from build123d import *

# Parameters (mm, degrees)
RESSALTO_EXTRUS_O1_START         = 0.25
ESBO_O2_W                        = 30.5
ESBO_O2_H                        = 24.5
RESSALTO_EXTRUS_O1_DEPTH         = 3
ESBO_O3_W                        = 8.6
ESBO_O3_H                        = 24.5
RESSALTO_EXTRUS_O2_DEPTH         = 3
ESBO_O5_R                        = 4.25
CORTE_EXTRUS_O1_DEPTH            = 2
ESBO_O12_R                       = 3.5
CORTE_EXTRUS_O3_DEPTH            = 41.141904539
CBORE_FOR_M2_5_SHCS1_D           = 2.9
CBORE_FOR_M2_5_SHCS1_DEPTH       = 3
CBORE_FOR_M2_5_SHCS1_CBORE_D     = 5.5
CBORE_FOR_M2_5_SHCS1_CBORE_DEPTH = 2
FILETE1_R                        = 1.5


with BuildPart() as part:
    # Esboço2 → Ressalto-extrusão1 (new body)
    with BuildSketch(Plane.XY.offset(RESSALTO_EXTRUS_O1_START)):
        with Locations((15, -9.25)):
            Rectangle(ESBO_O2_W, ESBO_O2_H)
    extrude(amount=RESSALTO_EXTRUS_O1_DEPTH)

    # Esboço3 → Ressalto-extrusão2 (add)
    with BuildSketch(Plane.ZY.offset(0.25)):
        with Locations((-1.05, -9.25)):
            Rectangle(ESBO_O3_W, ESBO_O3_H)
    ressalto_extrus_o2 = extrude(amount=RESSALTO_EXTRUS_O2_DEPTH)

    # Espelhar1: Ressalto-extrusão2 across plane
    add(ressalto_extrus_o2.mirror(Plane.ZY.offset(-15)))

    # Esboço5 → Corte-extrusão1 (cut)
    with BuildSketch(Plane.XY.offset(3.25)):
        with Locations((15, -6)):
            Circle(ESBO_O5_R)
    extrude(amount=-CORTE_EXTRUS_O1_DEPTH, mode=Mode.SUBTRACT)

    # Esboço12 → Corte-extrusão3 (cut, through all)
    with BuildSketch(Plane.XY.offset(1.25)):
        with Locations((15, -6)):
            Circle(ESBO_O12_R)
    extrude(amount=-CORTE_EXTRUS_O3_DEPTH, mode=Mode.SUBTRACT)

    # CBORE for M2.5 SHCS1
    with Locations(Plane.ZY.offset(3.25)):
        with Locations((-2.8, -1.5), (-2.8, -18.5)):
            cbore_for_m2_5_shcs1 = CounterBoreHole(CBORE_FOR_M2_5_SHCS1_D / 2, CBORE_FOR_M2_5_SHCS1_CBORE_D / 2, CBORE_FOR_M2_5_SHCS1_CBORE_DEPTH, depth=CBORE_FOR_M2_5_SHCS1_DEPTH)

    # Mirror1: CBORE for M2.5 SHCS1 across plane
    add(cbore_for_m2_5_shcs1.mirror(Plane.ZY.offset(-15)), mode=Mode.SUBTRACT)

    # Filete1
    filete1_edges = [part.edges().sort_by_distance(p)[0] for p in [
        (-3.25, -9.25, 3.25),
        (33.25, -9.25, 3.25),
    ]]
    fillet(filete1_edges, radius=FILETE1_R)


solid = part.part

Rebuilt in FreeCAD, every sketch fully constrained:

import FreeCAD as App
import Part
import Sketcher

V = App.Vector
Q = App.Units.Quantity


def edges_at(feature, points):
    """Names of the edges that pass closest to the given points."""
    edges = feature.Shape.Edges
    near = lambda p: min(range(len(edges)), key=lambda i: edges[i].distToShape(Part.Vertex(*p))[0])
    return sorted({f"Edge{near(p) + 1}" for p in points})


def add_polygon(sketch, points):
    """Adds a closed chain of lines whose ends are joined by coincident constraints."""
    first, n = sketch.GeometryCount, len(points)
    for a, b in zip(points, points[1:] + points[:1]):
        sketch.addGeometry(Part.LineSegment(App.Vector(*a, 0), App.Vector(*b, 0)), False)
    for i in range(n):
        sketch.addConstraint(Sketcher.Constraint("Coincident", first + i, 2, first + (i + 1) % n, 1))

doc = App.newDocument("Part")
body = doc.addObject("PartDesign::Body", "Body")

# Sketch on XY plane
sketch1 = body.newObject("Sketcher::SketchObject", "Sketch")
sketch1.AttachmentSupport = (doc.getObject("XY_Plane"), [""])
sketch1.MapMode = "FlatFace"
sketch1.AttachmentOffset = App.Placement(V(0, 0, 0.25), App.Rotation())
add_polygon(sketch1, [(0, 3), (0, -22), (30, -22), (30, 3)])  # lines 0-3
sketch1.addConstraint(Sketcher.Constraint("Vertical", 0))
sketch1.addConstraint(Sketcher.Constraint("Horizontal", 1))
sketch1.addConstraint(Sketcher.Constraint("Vertical", 2))
sketch1.addConstraint(Sketcher.Constraint("Horizontal", 3))
sketch1.addConstraint(Sketcher.Constraint("DistanceX", 1, 1, 1, 2, Q("30.5 mm")))
sketch1.addConstraint(Sketcher.Constraint("DistanceY", 0, 2, 0, 1, Q("24.5 mm")))
sketch1.addConstraint(Sketcher.Constraint("DistanceY", -1, 1, 2, 2, Q("3 mm")))
sketch1.addConstraint(Sketcher.Constraint("DistanceX", 0, 2, -1, 1, Q("0.25 mm")))
pad1 = body.newObject("PartDesign::Pad", "Pad")
pad1.Profile = sketch1
pad1.Length = 3

# Sketch on YZ plane
sketch2 = body.newObject("Sketcher::SketchObject", "Sketch001")
sketch2.AttachmentSupport = (doc.getObject("YZ_Plane"), [""])
sketch2.MapMode = "FlatFace"
sketch2.AttachmentOffset = App.Placement(V(0, 0, -0.25), App.Rotation())
add_polygon(sketch2, [(3, -5), (-22, -5), (-22, 3), (3, 3)])  # lines 0-3
sketch2.addConstraint(Sketcher.Constraint("Horizontal", 0))
sketch2.addConstraint(Sketcher.Constraint("Vertical", 1))
sketch2.addConstraint(Sketcher.Constraint("Horizontal", 2))
sketch2.addConstraint(Sketcher.Constraint("Vertical", 3))
sketch2.addConstraint(Sketcher.Constraint("DistanceX", 0, 2, 0, 1, Q("24.5 mm")))
sketch2.addConstraint(Sketcher.Constraint("DistanceY", 1, 1, 1, 2, Q("8.6 mm")))
sketch2.addConstraint(Sketcher.Constraint("DistanceX", -1, 1, 2, 2, Q("3 mm")))
sketch2.addConstraint(Sketcher.Constraint("DistanceY", 0, 2, -1, 1, Q("5.35 mm")))
pad2 = body.newObject("PartDesign::Pad", "Pad001")
pad2.Profile = sketch2
pad2.Length = 3
pad2.Reversed = True
doc.recompute()

datumplane = body.newObject("PartDesign::Plane", "DatumPlane")
datumplane.AttachmentSupport = (doc.getObject("YZ_Plane"), [""])
datumplane.MapMode = "FlatFace"
datumplane.AttachmentOffset = App.Placement(V(0, 0, 15), App.Rotation())
mirrored = body.newObject("PartDesign::Mirrored", "Mirrored")
mirrored.Originals = [pad2]
mirrored.MirrorPlane = (datumplane, [""])
body.Tip = mirrored

# Sketch on XY plane
sketch3 = body.newObject("Sketcher::SketchObject", "Sketch002")
sketch3.AttachmentSupport = (doc.getObject("XY_Plane"), [""])
sketch3.MapMode = "FlatFace"
sketch3.AttachmentOffset = App.Placement(V(0, 0, 3.25), App.Rotation())
sketch3.addGeometry(Part.Circle(V(15, -6, 0), V(0, 0, 1), 4.2), False)
sketch3.addConstraint(Sketcher.Constraint("Diameter", 0, Q("8.5 mm")))
sketch3.addConstraint(Sketcher.Constraint("DistanceX", -1, 1, 0, 3, Q("15 mm")))
sketch3.addConstraint(Sketcher.Constraint("DistanceY", 0, 3, -1, 1, Q("6 mm")))
pocket1 = body.newObject("PartDesign::Pocket", "Pocket")
pocket1.Profile = sketch3
pocket1.Length = 2

# Sketch on XY plane
sketch4 = body.newObject("Sketcher::SketchObject", "Sketch003")
sketch4.AttachmentSupport = (doc.getObject("XY_Plane"), [""])
sketch4.MapMode = "FlatFace"
sketch4.AttachmentOffset = App.Placement(V(0, 0, 1.25), App.Rotation())
sketch4.addGeometry(Part.Circle(V(15, -6, 0), V(0, 0, 1), 3.5), False)
sketch4.addConstraint(Sketcher.Constraint("Diameter", 0, Q("7 mm")))
sketch4.addConstraint(Sketcher.Constraint("DistanceX", -1, 1, 0, 3, Q("15 mm")))
sketch4.addConstraint(Sketcher.Constraint("DistanceY", 0, 3, -1, 1, Q("6 mm")))
pocket2 = body.newObject("PartDesign::Pocket", "Pocket001")
pocket2.Profile = sketch4
pocket2.Type = "ThroughAll"

# Sketch on YZ plane
sketch5 = body.newObject("Sketcher::SketchObject", "Sketch004")
sketch5.AttachmentSupport = (doc.getObject("YZ_Plane"), [""])
sketch5.MapMode = "FlatFace"
sketch5.AttachmentOffset = App.Placement(V(0, 0, -3.25), App.Rotation())
sketch5.addGeometry(Part.Circle(V(-1.5, -2.8, 0), V(0, 0, 1), 1.4), False)
sketch5.addGeometry(Part.Circle(V(-18.5, -2.8, 0), V(0, 0, 1), 1.4), False)
sketch5.addConstraint(Sketcher.Constraint("Equal", 0, 1))
sketch5.addConstraint(Sketcher.Constraint("Horizontal", 0, 3, 1, 3))
sketch5.addConstraint(Sketcher.Constraint("Diameter", 0, Q("2.9 mm")))
sketch5.addConstraint(Sketcher.Constraint("DistanceX", 1, 3, 0, 3, Q("17 mm")))
sketch5.addConstraint(Sketcher.Constraint("DistanceX", 0, 3, -1, 1, Q("1.5 mm")))
sketch5.addConstraint(Sketcher.Constraint("DistanceY", 0, 3, -1, 1, Q("2.8 mm")))
doc.recompute()
hole = body.newObject("PartDesign::Hole", "Hole")
hole.Profile = sketch5
hole.ThreadType = "None"
hole.Diameter = 2.9
hole.DepthType = "Dimension"
hole.Depth = 3
hole.DrillPoint = "Flat"
hole.HoleCutType = "Counterbore"
hole.HoleCutDiameter = 5.5
hole.HoleCutDepth = 2
hole.Reversed = True
doc.recompute()

datumplane2 = body.newObject("PartDesign::Plane", "DatumPlane001")
datumplane2.AttachmentSupport = (doc.getObject("YZ_Plane"), [""])
datumplane2.MapMode = "FlatFace"
datumplane2.AttachmentOffset = App.Placement(V(0, 0, 15), App.Rotation())
mirrored2 = body.newObject("PartDesign::Mirrored", "Mirrored001")
mirrored2.Originals = [hole]
mirrored2.MirrorPlane = (datumplane2, [""])
body.Tip = mirrored2
doc.recompute()

fillet = body.newObject("PartDesign::Fillet", "Fillet")
fillet.Base = (mirrored2, edges_at(mirrored2, [(-3.25, -9.25, 3.25), (33.25, -9.25, 3.25)]))
fillet.Radius = 1.5

doc.recompute()
